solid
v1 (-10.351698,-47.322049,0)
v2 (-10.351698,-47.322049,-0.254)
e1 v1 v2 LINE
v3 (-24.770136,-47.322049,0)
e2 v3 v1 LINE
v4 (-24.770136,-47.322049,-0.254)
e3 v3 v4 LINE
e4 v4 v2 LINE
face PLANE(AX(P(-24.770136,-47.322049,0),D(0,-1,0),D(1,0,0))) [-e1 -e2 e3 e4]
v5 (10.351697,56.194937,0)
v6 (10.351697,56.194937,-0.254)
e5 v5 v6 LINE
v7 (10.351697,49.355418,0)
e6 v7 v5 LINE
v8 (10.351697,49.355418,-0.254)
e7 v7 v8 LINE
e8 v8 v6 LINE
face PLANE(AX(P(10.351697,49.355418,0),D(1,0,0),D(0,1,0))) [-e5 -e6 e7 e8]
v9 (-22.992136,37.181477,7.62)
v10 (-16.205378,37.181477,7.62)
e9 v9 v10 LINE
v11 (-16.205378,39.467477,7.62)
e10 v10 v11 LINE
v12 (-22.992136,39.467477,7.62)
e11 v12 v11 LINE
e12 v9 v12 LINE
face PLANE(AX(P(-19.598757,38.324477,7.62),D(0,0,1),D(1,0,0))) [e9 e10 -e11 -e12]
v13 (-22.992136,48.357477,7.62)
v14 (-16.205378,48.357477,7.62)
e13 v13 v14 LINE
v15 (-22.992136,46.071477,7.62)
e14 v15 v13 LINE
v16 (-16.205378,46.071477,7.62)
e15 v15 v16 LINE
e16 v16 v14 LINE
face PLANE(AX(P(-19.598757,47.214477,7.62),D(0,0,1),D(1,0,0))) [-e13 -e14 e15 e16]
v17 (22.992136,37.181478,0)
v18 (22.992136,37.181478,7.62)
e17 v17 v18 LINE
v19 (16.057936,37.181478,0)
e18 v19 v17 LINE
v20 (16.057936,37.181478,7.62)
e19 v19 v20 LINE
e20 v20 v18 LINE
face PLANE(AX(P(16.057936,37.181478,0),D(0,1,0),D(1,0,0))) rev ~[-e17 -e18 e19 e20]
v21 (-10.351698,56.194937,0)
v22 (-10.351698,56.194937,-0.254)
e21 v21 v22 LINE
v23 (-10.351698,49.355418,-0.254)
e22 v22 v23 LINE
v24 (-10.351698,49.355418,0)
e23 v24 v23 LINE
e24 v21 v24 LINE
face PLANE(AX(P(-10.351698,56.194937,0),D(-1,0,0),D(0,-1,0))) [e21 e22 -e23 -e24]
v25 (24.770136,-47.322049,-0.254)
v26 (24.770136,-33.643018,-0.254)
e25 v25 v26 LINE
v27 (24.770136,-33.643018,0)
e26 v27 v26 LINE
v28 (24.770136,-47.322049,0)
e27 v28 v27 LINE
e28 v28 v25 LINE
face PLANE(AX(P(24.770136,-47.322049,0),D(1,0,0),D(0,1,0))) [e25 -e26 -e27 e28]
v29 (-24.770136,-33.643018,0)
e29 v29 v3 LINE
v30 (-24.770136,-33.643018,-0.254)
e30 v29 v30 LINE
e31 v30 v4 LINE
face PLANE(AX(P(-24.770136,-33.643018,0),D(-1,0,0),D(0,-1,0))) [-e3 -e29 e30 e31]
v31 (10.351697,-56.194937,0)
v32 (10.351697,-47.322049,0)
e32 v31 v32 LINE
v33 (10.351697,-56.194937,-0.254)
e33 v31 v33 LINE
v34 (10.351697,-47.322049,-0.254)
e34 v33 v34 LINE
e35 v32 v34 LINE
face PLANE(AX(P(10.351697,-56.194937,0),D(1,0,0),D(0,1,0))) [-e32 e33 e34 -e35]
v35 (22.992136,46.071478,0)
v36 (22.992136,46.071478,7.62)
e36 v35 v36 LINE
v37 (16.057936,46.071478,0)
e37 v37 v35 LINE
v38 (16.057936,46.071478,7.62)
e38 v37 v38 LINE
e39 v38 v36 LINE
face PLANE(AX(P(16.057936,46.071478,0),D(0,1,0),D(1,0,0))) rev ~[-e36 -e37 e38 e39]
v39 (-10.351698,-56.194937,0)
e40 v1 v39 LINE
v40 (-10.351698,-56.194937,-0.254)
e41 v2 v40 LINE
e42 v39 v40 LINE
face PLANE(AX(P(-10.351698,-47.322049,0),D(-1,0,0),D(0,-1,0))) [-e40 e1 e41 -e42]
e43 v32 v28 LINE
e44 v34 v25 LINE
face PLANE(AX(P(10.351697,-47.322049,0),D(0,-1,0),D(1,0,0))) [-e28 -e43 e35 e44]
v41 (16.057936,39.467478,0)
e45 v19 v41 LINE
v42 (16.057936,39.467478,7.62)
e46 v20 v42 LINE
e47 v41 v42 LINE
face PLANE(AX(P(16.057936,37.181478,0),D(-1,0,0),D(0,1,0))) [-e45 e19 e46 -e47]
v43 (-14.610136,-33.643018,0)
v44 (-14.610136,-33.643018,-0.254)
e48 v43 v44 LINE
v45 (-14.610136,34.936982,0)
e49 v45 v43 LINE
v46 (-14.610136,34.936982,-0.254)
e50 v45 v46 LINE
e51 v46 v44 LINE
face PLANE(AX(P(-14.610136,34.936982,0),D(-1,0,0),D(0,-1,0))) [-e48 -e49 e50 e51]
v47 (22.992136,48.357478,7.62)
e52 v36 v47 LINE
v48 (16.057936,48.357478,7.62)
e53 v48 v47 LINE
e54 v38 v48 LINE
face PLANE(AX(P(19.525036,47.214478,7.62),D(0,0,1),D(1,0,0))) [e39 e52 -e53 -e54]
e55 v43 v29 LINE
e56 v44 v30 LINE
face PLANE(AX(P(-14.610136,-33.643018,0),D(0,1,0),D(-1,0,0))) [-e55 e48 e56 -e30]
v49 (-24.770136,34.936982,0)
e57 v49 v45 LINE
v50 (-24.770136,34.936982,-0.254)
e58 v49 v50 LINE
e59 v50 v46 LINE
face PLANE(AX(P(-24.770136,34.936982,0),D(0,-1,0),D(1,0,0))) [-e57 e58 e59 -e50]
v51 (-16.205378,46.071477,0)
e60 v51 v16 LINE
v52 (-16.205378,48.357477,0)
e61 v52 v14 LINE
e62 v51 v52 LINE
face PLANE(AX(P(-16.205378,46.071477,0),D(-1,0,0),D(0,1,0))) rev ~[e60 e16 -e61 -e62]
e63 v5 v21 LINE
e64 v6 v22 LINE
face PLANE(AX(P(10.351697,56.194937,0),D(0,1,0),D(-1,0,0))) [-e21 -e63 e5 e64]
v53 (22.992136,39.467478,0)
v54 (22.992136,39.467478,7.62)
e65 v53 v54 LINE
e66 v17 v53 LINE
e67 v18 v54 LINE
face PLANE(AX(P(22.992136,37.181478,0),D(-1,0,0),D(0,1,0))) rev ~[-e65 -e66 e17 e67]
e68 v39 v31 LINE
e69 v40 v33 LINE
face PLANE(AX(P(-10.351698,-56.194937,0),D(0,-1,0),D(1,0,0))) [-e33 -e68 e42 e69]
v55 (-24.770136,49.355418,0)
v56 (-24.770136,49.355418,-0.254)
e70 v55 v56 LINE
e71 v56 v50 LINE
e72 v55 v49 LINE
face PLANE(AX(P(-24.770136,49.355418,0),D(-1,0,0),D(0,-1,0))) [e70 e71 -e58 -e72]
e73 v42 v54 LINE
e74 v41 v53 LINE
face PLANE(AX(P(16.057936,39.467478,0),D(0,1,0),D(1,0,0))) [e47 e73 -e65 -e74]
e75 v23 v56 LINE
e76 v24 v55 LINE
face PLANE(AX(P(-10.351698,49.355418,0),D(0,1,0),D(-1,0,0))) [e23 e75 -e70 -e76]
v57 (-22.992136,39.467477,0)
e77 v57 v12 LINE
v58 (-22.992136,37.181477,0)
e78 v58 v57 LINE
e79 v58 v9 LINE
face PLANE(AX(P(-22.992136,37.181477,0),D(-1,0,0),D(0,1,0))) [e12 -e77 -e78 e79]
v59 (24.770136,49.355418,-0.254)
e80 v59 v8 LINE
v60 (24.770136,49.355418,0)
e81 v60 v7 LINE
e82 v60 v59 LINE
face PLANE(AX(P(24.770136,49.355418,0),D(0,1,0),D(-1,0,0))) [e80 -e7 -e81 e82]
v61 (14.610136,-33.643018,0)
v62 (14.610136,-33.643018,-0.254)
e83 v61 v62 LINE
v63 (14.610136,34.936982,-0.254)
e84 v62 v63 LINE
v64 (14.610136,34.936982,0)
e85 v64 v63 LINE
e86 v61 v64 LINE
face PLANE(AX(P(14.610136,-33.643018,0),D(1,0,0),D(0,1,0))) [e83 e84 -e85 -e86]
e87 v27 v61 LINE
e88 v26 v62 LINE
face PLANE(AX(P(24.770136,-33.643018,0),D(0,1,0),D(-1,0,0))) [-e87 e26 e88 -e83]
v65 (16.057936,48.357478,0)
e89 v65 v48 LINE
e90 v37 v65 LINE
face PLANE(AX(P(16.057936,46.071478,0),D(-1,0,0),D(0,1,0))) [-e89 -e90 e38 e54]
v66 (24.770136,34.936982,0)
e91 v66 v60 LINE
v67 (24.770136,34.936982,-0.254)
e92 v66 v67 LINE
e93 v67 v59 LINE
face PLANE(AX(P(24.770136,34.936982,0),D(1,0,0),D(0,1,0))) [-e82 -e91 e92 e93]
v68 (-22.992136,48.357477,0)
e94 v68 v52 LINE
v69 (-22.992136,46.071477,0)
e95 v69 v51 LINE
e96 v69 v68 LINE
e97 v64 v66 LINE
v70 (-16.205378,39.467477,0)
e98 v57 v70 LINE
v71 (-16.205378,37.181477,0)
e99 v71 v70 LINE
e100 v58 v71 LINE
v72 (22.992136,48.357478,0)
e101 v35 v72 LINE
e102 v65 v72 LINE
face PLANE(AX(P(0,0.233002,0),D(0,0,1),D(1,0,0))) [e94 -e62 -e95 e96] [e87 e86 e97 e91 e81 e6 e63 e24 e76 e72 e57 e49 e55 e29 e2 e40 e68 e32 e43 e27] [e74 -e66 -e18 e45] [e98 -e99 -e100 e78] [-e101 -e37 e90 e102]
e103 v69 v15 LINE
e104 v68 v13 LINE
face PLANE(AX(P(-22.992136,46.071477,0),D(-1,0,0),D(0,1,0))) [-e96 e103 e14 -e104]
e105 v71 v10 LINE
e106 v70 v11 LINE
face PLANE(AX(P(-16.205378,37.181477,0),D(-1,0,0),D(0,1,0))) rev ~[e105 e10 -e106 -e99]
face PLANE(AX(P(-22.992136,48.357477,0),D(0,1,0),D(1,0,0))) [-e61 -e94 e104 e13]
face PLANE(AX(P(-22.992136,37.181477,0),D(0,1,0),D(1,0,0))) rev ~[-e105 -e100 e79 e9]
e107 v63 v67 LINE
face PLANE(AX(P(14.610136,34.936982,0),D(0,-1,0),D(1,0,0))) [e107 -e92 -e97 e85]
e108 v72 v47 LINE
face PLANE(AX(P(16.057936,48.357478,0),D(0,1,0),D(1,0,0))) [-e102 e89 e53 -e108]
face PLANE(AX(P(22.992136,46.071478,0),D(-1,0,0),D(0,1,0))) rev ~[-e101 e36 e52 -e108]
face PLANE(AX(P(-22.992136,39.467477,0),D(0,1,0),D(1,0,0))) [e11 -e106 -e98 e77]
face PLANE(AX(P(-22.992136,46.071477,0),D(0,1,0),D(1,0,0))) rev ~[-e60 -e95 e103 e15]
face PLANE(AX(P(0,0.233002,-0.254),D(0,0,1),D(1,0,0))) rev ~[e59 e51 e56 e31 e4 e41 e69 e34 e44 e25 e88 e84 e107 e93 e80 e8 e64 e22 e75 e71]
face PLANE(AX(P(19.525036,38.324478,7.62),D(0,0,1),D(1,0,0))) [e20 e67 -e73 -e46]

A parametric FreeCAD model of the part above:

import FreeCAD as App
import Part
import Sketcher
Q = App.Units.Quantity

doc = App.newDocument("Part")
body = doc.addObject("PartDesign::Body", "Body")

# Sketch on XY plane
sketch1 = body.newObject("Sketcher::SketchObject", "Sketch")
sketch1.AttachmentSupport = (doc.getObject("XY_Plane"), [""])
sketch1.MapMode = "FlatFace"
sketch1.addGeometry(Part.LineSegment(App.Vector(-10.351698, -56.194937, 0), App.Vector(10.351697, -56.194937, 0)), False)
sketch1.addGeometry(Part.LineSegment(App.Vector(10.351697, -56.194937, 0), App.Vector(10.351697, -47.322049, 0)), False)
sketch1.addGeometry(Part.LineSegment(App.Vector(10.351697, -47.322049, 0), App.Vector(24.770136, -47.322049, 0)), False)
sketch1.addGeometry(Part.LineSegment(App.Vector(24.770136, -47.322049, 0), App.Vector(24.770136, -33.643018, 0)), False)
sketch1.addGeometry(Part.LineSegment(App.Vector(24.770136, -33.643018, 0), App.Vector(14.610136, -33.643018, 0)), False)
sketch1.addGeometry(Part.LineSegment(App.Vector(14.610136, -33.643018, 0), App.Vector(14.610136, 34.936982, 0)), False)
sketch1.addGeometry(Part.LineSegment(App.Vector(14.610136, 34.936982, 0), App.Vector(24.770136, 34.936982, 0)), False)
sketch1.addGeometry(Part.LineSegment(App.Vector(24.770136, 34.936982, 0), App.Vector(24.770136, 49.355418, 0)), False)
sketch1.addGeometry(Part.LineSegment(App.Vector(24.770136, 49.355418, 0), App.Vector(10.351697, 49.355418, 0)), False)
sketch1.addGeometry(Part.LineSegment(App.Vector(10.351697, 49.355418, 0), App.Vector(10.351697, 56.194937, 0)), False)
sketch1.addGeometry(Part.LineSegment(App.Vector(10.351697, 56.194937, 0), App.Vector(-10.351698, 56.194937, 0)), False)
sketch1.addGeometry(Part.LineSegment(App.Vector(-10.351698, 56.194937, 0), App.Vector(-10.351698, 49.355418, 0)), False)
sketch1.addGeometry(Part.LineSegment(App.Vector(-10.351698, 49.355418, 0), App.Vector(-24.770136, 49.355418, 0)), False)
sketch1.addGeometry(Part.LineSegment(App.Vector(-24.770136, 49.355418, 0), App.Vector(-24.770136, 34.936982, 0)), False)
sketch1.addGeometry(Part.LineSegment(App.Vector(-24.770136, 34.936982, 0), App.Vector(-14.610136, 34.936982, 0)), False)
sketch1.addGeometry(Part.LineSegment(App.Vector(-14.610136, 34.936982, 0), App.Vector(-14.610136, -33.643018, 0)), False)
sketch1.addGeometry(Part.LineSegment(App.Vector(-14.610136, -33.643018, 0), App.Vector(-24.770136, -33.643018, 0)), False)
sketch1.addGeometry(Part.LineSegment(App.Vector(-24.770136, -33.643018, 0), App.Vector(-24.770136, -47.322049, 0)), False)
sketch1.addGeometry(Part.LineSegment(App.Vector(-24.770136, -47.322049, 0), App.Vector(-10.351698, -47.322049, 0)), False)
sketch1.addGeometry(Part.LineSegment(App.Vector(-10.351698, -47.322049, 0), App.Vector(-10.351698, -56.194937, 0)), False)
sketch1.addConstraint(Sketcher.Constraint("Coincident", 0, 2, 1, 1))
sketch1.addConstraint(Sketcher.Constraint("Coincident", 1, 2, 2, 1))
sketch1.addConstraint(Sketcher.Constraint("Coincident", 2, 2, 3, 1))
sketch1.addConstraint(Sketcher.Constraint("Coincident", 3, 2, 4, 1))
sketch1.addConstraint(Sketcher.Constraint("Coincident", 4, 2, 5, 1))
sketch1.addConstraint(Sketcher.Constraint("Coincident", 5, 2, 6, 1))
sketch1.addConstraint(Sketcher.Constraint("Coincident", 6, 2, 7, 1))
sketch1.addConstraint(Sketcher.Constraint("Coincident", 7, 2, 8, 1))
sketch1.addConstraint(Sketcher.Constraint("Coincident", 8, 2, 9, 1))
sketch1.addConstraint(Sketcher.Constraint("Coincident", 9, 2, 10, 1))
sketch1.addConstraint(Sketcher.Constraint("Coincident", 10, 2, 11, 1))
sketch1.addConstraint(Sketcher.Constraint("Coincident", 11, 2, 12, 1))
sketch1.addConstraint(Sketcher.Constraint("Coincident", 12, 2, 13, 1))
sketch1.addConstraint(Sketcher.Constraint("Coincident", 13, 2, 14, 1))
sketch1.addConstraint(Sketcher.Constraint("Coincident", 14, 2, 15, 1))
sketch1.addConstraint(Sketcher.Constraint("Coincident", 15, 2, 16, 1))
sketch1.addConstraint(Sketcher.Constraint("Coincident", 16, 2, 17, 1))
sketch1.addConstraint(Sketcher.Constraint("Coincident", 17, 2, 18, 1))
sketch1.addConstraint(Sketcher.Constraint("Coincident", 18, 2, 19, 1))
sketch1.addConstraint(Sketcher.Constraint("Coincident", 19, 2, 0, 1))
sketch1.addConstraint(Sketcher.Constraint("Horizontal", 0))
sketch1.addConstraint(Sketcher.Constraint("Vertical", 1))
sketch1.addConstraint(Sketcher.Constraint("Horizontal", 2))
sketch1.addConstraint(Sketcher.Constraint("Vertical", 3))
sketch1.addConstraint(Sketcher.Constraint("Horizontal", 4))
sketch1.addConstraint(Sketcher.Constraint("Vertical", 5))
sketch1.addConstraint(Sketcher.Constraint("Horizontal", 6))
sketch1.addConstraint(Sketcher.Constraint("Vertical", 7))
sketch1.addConstraint(Sketcher.Constraint("Horizontal", 8))
sketch1.addConstraint(Sketcher.Constraint("Vertical", 9))
sketch1.addConstraint(Sketcher.Constraint("Horizontal", 10))
sketch1.addConstraint(Sketcher.Constraint("Vertical", 11))
sketch1.addConstraint(Sketcher.Constraint("Horizontal", 12))
sketch1.addConstraint(Sketcher.Constraint("Vertical", 13))
sketch1.addConstraint(Sketcher.Constraint("Horizontal", 14))
sketch1.addConstraint(Sketcher.Constraint("Vertical", 15))
sketch1.addConstraint(Sketcher.Constraint("Horizontal", 16))
sketch1.addConstraint(Sketcher.Constraint("Vertical", 17))
sketch1.addConstraint(Sketcher.Constraint("Horizontal", 18))
sketch1.addConstraint(Sketcher.Constraint("Vertical", 19))
sketch1.addConstraint(Sketcher.Constraint("Symmetric", 0, 2, 10, 2, -1, 1))
sketch1.addConstraint(Sketcher.Constraint("Symmetric", 8, 2, 11, 2, -2))
sketch1.addConstraint(Sketcher.Constraint("Symmetric", 6, 2, 13, 2, -2))
sketch1.addConstraint(Sketcher.Constraint("Symmetric", 4, 2, 15, 2, -2))
sketch1.addConstraint(Sketcher.Constraint("Symmetric", 2, 2, 17, 2, -2))
sketch1.addConstraint(Sketcher.Constraint("Vertical", 3, 2, 6, 2))
sketch1.addConstraint(Sketcher.Constraint("Vertical", 11, 2, 18, 2))
sketch1.addConstraint(Sketcher.Constraint("DistanceX", 4, 2, 4, 1, Q("0.4 in")))
sketch1.addConstraint(Sketcher.Constraint("DistanceY", 5, 1, 5, 2, Q("2.7 in")))
sketch1.addConstraint(Sketcher.Constraint("DistanceX", 2, 1, 2, 2, 14.418439))
sketch1.addConstraint(Sketcher.Constraint("DistanceY", 1, 1, 1, 2, 8.872888))
sketch1.addConstraint(Sketcher.Constraint("DistanceY", 3, 1, 3, 2, 13.679031))
sketch1.addConstraint(Sketcher.Constraint("DistanceY", 9, 1, 9, 2, 6.839519))
sketch1.addConstraint(Sketcher.Constraint("DistanceX", 10, 2, -1, 1, 10.351698))
sketch1.addConstraint(Sketcher.Constraint("DistanceY", 7, 1, 7, 2, 14.418436))
pad1 = body.newObject("PartDesign::Pad", "Pad")
pad1.Profile = sketch1
pad1.Length = Q("0.01 in")
pad1.Reversed = True

# Sketch on XY plane
sketch2 = body.newObject("Sketcher::SketchObject", "Sketch001")
sketch2.AttachmentSupport = (doc.getObject("XY_Plane"), [""])
sketch2.MapMode = "FlatFace"
sketch2.addGeometry(Part.LineSegment(App.Vector(-22.992136, 48.357477, 0), App.Vector(-22.992136, 46.071477, 0)), False)
sketch2.addGeometry(Part.LineSegment(App.Vector(-22.992136, 46.071477, 0), App.Vector(-16.205378, 46.071477, 0)), False)
sketch2.addGeometry(Part.LineSegment(App.Vector(-16.205378, 46.071477, 0), App.Vector(-16.205378, 48.357477, 0)), False)
sketch2.addGeometry(Part.LineSegment(App.Vector(-16.205378, 48.357477, 0), App.Vector(-22.992136, 48.357477, 0)), False)
sketch2.addGeometry(Part.LineSegment(App.Vector(-22.992136, 39.467477, 0), App.Vector(-22.992136, 37.181477, 0)), False)
sketch2.addGeometry(Part.LineSegment(App.Vector(-22.992136, 37.181477, 0), App.Vector(-16.205378, 37.181477, 0)), False)
sketch2.addGeometry(Part.LineSegment(App.Vector(-16.205378, 37.181477, 0), App.Vector(-16.205378, 39.467477, 0)), False)
sketch2.addGeometry(Part.LineSegment(App.Vector(-16.205378, 39.467477, 0), App.Vector(-22.992136, 39.467477, 0)), False)
sketch2.addGeometry(Part.LineSegment(App.Vector(16.057936, 39.467478, 0), App.Vector(16.057936, 37.181478, 0)), False)
sketch2.addGeometry(Part.LineSegment(App.Vector(16.057936, 37.181478, 0), App.Vector(22.992136, 37.181478, 0)), False)
sketch2.addGeometry(Part.LineSegment(App.Vector(22.992136, 37.181478, 0), App.Vector(22.992136, 39.467478, 0)), False)
sketch2.addGeometry(Part.LineSegment(App.Vector(22.992136, 39.467478, 0), App.Vector(16.057936, 39.467478, 0)), False)
sketch2.addGeometry(Part.LineSegment(App.Vector(16.057936, 48.357478, 0), App.Vector(16.057936, 46.071478, 0)), False)
sketch2.addGeometry(Part.LineSegment(App.Vector(16.057936, 46.071478, 0), App.Vector(22.992136, 46.071478, 0)), False)
sketch2.addGeometry(Part.LineSegment(App.Vector(22.992136, 46.071478, 0), App.Vector(22.992136, 48.357478, 0)), False)
sketch2.addGeometry(Part.LineSegment(App.Vector(22.992136, 48.357478, 0), App.Vector(16.057936, 48.357478, 0)), False)
sketch2.addConstraint(Sketcher.Constraint("Coincident", 0, 2, 1, 1))
sketch2.addConstraint(Sketcher.Constraint("Coincident", 1, 2, 2, 1))
sketch2.addConstraint(Sketcher.Constraint("Coincident", 2, 2, 3, 1))
sketch2.addConstraint(Sketcher.Constraint("Coincident", 3, 2, 0, 1))
sketch2.addConstraint(Sketcher.Constraint("Coincident", 4, 2, 5, 1))
sketch2.addConstraint(Sketcher.Constraint("Coincident", 5, 2, 6, 1))
sketch2.addConstraint(Sketcher.Constraint("Coincident", 6, 2, 7, 1))
sketch2.addConstraint(Sketcher.Constraint("Coincident", 7, 2, 4, 1))
sketch2.addConstraint(Sketcher.Constraint("Coincident", 8, 2, 9, 1))
sketch2.addConstraint(Sketcher.Constraint("Coincident", 9, 2, 10, 1))
sketch2.addConstraint(Sketcher.Constraint("Coincident", 10, 2, 11, 1))
sketch2.addConstraint(Sketcher.Constraint("Coincident", 11, 2, 8, 1))
sketch2.addConstraint(Sketcher.Constraint("Coincident", 12, 2, 13, 1))
sketch2.addConstraint(Sketcher.Constraint("Coincident", 13, 2, 14, 1))
sketch2.addConstraint(Sketcher.Constraint("Coincident", 14, 2, 15, 1))
sketch2.addConstraint(Sketcher.Constraint("Coincident", 15, 2, 12, 1))
sketch2.addConstraint(Sketcher.Constraint("Vertical", 0))
sketch2.addConstraint(Sketcher.Constraint("Horizontal", 1))
sketch2.addConstraint(Sketcher.Constraint("Vertical", 2))
sketch2.addConstraint(Sketcher.Constraint("Horizontal", 3))
sketch2.addConstraint(Sketcher.Constraint("Vertical", 4))
sketch2.addConstraint(Sketcher.Constraint("Horizontal", 5))
sketch2.addConstraint(Sketcher.Constraint("Vertical", 6))
sketch2.addConstraint(Sketcher.Constraint("Horizontal", 7))
sketch2.addConstraint(Sketcher.Constraint("Vertical", 8))
sketch2.addConstraint(Sketcher.Constraint("Horizontal", 9))
sketch2.addConstraint(Sketcher.Constraint("Vertical", 10))
sketch2.addConstraint(Sketcher.Constraint("Horizontal", 11))
sketch2.addConstraint(Sketcher.Constraint("Vertical", 12))
sketch2.addConstraint(Sketcher.Constraint("Horizontal", 13))
sketch2.addConstraint(Sketcher.Constraint("Vertical", 14))
sketch2.addConstraint(Sketcher.Constraint("Horizontal", 15))
sketch2.addConstraint(Sketcher.Constraint("Symmetric", 4, 2, 9, 2, -2))
sketch2.addConstraint(Sketcher.Constraint("Symmetric", 0, 2, 13, 2, -2))
sketch2.addConstraint(Sketcher.Constraint("Horizontal", 7, 2, 10, 2))
sketch2.addConstraint(Sketcher.Constraint("Horizontal", 3, 2, 14, 2))
sketch2.addConstraint(Sketcher.Constraint("Vertical", 3, 2, 4, 2))
sketch2.addConstraint(Sketcher.Constraint("Vertical", 2, 2, 5, 2))
sketch2.addConstraint(Sketcher.Constraint("Vertical", 11, 2, 12, 2))
sketch2.addConstraint(Sketcher.Constraint("Equal", 2, 4))
sketch2.addConstraint(Sketcher.Constraint("DistanceY", 0, 2, 0, 1, Q("0.09 in")))
sketch2.addConstraint(Sketcher.Constraint("DistanceX", 9, 1, 9, 2, Q("0.273 in")))
sketch2.addConstraint(Sketcher.Constraint("DistanceY", 4, 2, 0, 2, Q("0.35 in")))
sketch2.addConstraint(Sketcher.Constraint("DistanceX", 1, 1, 1, 2, 6.786758))
sketch2.addConstraint(Sketcher.Constraint("DistanceX", 0, 2, -1, 1, 22.992136))
sketch2.addConstraint(Sketcher.Constraint("DistanceY", -1, 1, 0, 2, 46.071477))
pad2 = body.newObject("PartDesign::Pad", "Pad001")
pad2.Profile = sketch2
pad2.Length = Q("0.3 in")

doc.recompute()
